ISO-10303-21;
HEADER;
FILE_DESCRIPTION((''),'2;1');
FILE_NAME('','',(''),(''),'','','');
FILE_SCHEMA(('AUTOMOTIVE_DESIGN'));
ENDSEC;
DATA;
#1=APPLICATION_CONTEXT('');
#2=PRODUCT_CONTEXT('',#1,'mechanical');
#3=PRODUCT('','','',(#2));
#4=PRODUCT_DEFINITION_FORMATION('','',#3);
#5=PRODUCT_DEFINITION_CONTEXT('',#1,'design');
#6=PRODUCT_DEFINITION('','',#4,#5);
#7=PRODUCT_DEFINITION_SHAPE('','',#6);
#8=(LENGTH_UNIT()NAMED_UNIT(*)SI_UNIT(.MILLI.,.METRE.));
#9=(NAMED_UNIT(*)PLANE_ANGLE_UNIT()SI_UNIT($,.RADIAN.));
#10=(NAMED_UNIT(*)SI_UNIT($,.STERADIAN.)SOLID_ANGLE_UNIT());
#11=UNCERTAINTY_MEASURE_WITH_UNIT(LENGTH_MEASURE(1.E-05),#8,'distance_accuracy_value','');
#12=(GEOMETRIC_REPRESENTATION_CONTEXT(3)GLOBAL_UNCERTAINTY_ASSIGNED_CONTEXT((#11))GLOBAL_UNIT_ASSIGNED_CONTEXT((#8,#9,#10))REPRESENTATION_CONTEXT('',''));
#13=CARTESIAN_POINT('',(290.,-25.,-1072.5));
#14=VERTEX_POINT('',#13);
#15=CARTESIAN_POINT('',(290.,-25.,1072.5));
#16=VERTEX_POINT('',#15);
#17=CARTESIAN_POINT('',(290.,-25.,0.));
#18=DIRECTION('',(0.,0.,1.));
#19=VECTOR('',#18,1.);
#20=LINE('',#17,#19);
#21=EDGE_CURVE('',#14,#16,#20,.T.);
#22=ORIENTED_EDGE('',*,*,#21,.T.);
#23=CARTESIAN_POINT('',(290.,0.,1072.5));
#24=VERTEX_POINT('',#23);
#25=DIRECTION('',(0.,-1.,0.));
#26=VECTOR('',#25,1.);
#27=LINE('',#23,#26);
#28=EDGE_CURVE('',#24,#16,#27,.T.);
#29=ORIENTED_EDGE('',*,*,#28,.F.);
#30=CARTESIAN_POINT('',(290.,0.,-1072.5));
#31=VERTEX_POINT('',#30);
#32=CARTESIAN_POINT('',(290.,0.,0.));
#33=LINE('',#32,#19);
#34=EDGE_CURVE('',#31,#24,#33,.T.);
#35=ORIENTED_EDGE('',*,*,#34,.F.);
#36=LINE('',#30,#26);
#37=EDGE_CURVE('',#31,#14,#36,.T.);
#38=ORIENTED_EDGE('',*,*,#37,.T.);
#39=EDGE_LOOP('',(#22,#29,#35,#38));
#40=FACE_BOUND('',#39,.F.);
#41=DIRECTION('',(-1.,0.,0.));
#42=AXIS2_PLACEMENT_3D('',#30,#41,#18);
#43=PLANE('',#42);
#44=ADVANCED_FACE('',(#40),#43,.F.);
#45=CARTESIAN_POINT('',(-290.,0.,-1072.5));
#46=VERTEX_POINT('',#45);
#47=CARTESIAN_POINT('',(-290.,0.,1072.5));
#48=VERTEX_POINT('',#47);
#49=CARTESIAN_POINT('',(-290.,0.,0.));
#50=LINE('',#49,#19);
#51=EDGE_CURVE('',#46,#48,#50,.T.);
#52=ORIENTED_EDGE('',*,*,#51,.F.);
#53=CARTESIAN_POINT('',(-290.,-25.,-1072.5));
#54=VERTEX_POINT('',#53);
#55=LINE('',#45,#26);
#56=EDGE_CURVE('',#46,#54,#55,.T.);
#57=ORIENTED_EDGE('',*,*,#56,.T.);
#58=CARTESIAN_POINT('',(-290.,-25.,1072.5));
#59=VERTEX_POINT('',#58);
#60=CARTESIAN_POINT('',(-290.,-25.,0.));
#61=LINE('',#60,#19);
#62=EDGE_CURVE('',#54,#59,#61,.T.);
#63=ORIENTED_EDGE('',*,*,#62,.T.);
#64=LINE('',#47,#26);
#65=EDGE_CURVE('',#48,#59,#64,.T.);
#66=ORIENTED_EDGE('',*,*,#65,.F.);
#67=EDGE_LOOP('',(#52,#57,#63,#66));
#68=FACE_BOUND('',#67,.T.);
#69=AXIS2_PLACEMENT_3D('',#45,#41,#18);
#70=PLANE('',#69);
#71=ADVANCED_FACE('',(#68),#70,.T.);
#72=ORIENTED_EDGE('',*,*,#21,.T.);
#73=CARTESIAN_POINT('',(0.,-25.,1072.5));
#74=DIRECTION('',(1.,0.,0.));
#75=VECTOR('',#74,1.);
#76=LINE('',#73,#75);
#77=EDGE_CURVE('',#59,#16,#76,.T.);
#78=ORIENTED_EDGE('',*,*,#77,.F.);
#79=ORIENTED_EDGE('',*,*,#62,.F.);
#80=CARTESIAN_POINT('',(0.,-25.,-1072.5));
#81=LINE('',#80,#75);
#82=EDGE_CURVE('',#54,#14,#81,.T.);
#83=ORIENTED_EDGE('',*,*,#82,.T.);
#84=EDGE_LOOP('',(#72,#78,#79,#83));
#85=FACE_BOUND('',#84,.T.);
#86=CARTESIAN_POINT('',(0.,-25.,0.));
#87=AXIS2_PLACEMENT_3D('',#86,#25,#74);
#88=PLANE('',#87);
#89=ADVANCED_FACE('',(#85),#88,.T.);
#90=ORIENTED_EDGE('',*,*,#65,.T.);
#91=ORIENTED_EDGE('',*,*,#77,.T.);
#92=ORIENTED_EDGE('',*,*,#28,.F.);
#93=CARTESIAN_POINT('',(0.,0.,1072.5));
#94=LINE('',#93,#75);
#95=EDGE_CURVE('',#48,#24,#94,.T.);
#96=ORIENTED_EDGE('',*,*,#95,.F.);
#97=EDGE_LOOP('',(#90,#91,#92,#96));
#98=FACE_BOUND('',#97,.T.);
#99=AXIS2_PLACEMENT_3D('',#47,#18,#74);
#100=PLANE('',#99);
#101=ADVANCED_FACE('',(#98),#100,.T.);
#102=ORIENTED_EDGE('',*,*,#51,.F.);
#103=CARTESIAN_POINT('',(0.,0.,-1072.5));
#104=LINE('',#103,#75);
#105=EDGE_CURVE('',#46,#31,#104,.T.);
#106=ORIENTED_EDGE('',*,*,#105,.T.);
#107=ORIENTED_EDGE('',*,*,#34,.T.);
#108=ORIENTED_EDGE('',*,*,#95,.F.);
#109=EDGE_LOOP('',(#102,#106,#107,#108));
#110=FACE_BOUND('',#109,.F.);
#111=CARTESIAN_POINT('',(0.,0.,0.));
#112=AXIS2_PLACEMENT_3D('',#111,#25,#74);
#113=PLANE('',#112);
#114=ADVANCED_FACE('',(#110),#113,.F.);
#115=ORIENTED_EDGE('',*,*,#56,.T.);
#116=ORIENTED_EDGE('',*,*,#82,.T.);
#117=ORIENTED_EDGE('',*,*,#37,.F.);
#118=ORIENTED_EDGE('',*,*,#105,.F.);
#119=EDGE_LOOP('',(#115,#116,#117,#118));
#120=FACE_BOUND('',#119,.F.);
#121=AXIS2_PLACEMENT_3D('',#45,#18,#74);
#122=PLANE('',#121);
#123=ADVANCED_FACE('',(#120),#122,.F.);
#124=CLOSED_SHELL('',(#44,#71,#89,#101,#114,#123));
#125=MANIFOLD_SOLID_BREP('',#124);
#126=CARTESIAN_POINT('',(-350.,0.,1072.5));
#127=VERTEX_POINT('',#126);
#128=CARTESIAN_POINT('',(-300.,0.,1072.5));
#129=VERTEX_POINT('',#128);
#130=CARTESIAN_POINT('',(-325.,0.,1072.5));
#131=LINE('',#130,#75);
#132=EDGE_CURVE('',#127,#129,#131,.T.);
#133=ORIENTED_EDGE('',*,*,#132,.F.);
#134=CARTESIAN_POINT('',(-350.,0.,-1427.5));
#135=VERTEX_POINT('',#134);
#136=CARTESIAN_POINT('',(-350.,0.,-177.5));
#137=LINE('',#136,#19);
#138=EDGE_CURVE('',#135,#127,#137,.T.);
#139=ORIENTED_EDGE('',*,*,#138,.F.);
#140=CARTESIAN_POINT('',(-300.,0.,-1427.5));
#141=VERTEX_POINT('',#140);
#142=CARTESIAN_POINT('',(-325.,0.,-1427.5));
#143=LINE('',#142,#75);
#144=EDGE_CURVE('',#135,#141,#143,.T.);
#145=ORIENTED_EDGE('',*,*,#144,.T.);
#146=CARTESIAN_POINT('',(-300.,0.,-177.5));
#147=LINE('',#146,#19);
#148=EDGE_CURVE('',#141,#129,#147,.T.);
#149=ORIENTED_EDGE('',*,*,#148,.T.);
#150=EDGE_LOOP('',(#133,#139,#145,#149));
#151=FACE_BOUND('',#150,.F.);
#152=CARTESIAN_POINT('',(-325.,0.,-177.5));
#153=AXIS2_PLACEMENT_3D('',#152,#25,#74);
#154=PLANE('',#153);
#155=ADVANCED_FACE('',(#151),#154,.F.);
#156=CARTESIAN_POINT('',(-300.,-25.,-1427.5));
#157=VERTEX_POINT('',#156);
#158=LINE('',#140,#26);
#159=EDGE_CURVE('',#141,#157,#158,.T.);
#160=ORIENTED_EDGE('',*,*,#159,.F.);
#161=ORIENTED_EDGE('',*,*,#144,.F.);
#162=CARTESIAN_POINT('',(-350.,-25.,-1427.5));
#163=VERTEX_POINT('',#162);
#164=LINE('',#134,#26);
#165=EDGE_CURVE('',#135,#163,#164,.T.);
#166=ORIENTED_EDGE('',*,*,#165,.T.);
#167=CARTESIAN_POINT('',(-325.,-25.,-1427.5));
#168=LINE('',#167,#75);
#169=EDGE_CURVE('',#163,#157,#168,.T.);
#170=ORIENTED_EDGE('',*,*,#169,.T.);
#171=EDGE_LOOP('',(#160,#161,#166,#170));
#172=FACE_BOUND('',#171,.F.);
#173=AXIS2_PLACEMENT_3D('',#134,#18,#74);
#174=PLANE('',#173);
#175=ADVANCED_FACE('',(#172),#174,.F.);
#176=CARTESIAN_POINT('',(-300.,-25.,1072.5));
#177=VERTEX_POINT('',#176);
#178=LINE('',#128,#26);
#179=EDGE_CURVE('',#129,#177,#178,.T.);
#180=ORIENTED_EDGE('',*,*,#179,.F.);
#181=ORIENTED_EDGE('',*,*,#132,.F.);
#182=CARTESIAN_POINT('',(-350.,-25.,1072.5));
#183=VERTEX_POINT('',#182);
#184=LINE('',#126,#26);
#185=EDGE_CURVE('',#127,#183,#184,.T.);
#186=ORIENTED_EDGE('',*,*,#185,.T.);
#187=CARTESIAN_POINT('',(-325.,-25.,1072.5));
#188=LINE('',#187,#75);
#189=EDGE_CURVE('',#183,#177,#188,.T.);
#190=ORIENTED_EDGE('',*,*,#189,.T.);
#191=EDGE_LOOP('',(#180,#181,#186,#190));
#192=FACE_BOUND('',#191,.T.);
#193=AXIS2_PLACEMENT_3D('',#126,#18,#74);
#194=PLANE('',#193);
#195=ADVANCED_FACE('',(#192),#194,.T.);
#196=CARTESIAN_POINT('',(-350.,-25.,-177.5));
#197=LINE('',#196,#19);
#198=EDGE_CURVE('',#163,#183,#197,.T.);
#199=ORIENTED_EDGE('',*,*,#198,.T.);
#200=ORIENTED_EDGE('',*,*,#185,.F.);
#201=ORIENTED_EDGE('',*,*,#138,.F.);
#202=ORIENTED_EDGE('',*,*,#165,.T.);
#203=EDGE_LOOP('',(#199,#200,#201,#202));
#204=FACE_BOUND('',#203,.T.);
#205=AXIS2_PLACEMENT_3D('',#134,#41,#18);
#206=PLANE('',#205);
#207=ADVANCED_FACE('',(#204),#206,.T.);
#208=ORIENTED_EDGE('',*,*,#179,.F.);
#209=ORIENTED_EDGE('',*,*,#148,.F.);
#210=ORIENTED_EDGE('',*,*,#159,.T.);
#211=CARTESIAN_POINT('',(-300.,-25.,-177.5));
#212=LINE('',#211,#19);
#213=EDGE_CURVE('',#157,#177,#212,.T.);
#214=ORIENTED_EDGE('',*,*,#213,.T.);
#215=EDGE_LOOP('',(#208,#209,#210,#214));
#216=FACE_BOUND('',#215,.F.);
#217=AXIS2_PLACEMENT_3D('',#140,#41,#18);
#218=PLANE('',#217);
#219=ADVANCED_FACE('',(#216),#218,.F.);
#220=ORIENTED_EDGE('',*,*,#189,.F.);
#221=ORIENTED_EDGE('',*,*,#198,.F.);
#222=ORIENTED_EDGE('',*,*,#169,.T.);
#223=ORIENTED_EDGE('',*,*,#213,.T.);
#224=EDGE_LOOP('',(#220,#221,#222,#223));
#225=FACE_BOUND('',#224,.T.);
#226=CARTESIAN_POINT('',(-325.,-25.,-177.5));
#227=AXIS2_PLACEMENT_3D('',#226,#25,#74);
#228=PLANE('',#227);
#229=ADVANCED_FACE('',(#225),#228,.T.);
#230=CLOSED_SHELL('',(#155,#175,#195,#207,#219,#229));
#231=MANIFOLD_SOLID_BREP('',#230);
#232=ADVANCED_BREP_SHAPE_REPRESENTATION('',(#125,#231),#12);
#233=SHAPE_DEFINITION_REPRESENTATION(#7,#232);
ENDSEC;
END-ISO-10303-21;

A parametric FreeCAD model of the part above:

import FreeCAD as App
import Part
import Sketcher
from FreeCAD import Vector
Q = App.Units.Quantity


def add_polygon(sketch, points):
    """Adds a closed chain of lines whose ends are joined by coincident constraints."""
    first, n = sketch.GeometryCount, len(points)
    for a, b in zip(points, points[1:] + points[:1]):
        sketch.addGeometry(Part.LineSegment(App.Vector(*a, 0), App.Vector(*b, 0)), False)
    for i in range(n):
        sketch.addConstraint(Sketcher.Constraint("Coincident", first + i, 2, first + (i + 1) % n, 1))

doc = App.newDocument("Part")
params = doc.addObject("Spreadsheet::Sheet", "Params")
for row, (alias, value) in enumerate([
    ("sketch1_width", "580 mm"),
    ("sketch1_height", "2145 mm"),
    ("pad1_length", "25 mm"),
    ("sketch2_width", "50 mm"),
    ("sketch2_height", "2500 mm"),
    ("pad2_length", "25 mm"),
], start=1):
    params.set(f"A{row}", alias)
    params.set(f"B{row}", "=" + value)
    params.setAlias(f"B{row}", alias)

body = doc.addObject("PartDesign::Body", "Body")

# Sketch on XZ plane
sketch1 = body.newObject("Sketcher::SketchObject", "Sketch")
sketch1.AttachmentSupport = (doc.getObject("XZ_Plane"), [""])
sketch1.MapMode = "FlatFace"
add_polygon(sketch1, [(-290, 1072), (-290, -1072), (290, -1072), (290, 1072)])  # lines 0-3
sketch1.addConstraint([
    Sketcher.Constraint("Vertical", 0),
    Sketcher.Constraint("Horizontal", 1),
    Sketcher.Constraint("Vertical", 2),
    Sketcher.Constraint("Horizontal", 3),
    Sketcher.Constraint("Symmetric", 0, 2, 2, 2, -1, 1),
    Sketcher.Constraint("DistanceX", 1, 1, 1, 2, Q("580 mm")),
    Sketcher.Constraint("DistanceY", 0, 2, 0, 1, Q("2145 mm")),
])
sketch1.setExpression("Constraints[9]", "Params.sketch1_width")
sketch1.setExpression("Constraints[10]", "Params.sketch1_height")
pad1 = body.newObject("PartDesign::Pad", "Pad")
pad1.Profile = sketch1
pad1.setExpression("Length", "Params.pad1_length")
body2 = doc.addObject("PartDesign::Body", "Body001")

# Sketch on XZ plane
sketch2 = body2.newObject("Sketcher::SketchObject", "Sketch001")
sketch2.AttachmentSupport = (doc.getObject("XZ_Plane001"), [""])
sketch2.MapMode = "FlatFace"
add_polygon(sketch2, [(-350, 1072), (-350, -1428), (-300, -1428), (-300, 1072)])  # lines 0-3
sketch2.addConstraint([
    Sketcher.Constraint("Vertical", 0),
    Sketcher.Constraint("Horizontal", 1),
    Sketcher.Constraint("Vertical", 2),
    Sketcher.Constraint("Horizontal", 3),
    Sketcher.Constraint("DistanceX", 1, 1, 1, 2, Q("50 mm")),
    Sketcher.Constraint("DistanceY", 0, 2, 0, 1, Q("2500 mm")),
    Sketcher.Constraint("DistanceX", 0, 2, -1, 1, Q("350 mm")),
    Sketcher.Constraint("DistanceY", 0, 2, -1, 1, Q("1427.5 mm")),
])
sketch2.setExpression("Constraints[8]", "Params.sketch2_width")
sketch2.setExpression("Constraints[9]", "Params.sketch2_height")
pad2 = body2.newObject("PartDesign::Pad", "Pad001")
pad2.Profile = sketch2
pad2.setExpression("Length", "Params.pad2_length")

doc.recompute()
